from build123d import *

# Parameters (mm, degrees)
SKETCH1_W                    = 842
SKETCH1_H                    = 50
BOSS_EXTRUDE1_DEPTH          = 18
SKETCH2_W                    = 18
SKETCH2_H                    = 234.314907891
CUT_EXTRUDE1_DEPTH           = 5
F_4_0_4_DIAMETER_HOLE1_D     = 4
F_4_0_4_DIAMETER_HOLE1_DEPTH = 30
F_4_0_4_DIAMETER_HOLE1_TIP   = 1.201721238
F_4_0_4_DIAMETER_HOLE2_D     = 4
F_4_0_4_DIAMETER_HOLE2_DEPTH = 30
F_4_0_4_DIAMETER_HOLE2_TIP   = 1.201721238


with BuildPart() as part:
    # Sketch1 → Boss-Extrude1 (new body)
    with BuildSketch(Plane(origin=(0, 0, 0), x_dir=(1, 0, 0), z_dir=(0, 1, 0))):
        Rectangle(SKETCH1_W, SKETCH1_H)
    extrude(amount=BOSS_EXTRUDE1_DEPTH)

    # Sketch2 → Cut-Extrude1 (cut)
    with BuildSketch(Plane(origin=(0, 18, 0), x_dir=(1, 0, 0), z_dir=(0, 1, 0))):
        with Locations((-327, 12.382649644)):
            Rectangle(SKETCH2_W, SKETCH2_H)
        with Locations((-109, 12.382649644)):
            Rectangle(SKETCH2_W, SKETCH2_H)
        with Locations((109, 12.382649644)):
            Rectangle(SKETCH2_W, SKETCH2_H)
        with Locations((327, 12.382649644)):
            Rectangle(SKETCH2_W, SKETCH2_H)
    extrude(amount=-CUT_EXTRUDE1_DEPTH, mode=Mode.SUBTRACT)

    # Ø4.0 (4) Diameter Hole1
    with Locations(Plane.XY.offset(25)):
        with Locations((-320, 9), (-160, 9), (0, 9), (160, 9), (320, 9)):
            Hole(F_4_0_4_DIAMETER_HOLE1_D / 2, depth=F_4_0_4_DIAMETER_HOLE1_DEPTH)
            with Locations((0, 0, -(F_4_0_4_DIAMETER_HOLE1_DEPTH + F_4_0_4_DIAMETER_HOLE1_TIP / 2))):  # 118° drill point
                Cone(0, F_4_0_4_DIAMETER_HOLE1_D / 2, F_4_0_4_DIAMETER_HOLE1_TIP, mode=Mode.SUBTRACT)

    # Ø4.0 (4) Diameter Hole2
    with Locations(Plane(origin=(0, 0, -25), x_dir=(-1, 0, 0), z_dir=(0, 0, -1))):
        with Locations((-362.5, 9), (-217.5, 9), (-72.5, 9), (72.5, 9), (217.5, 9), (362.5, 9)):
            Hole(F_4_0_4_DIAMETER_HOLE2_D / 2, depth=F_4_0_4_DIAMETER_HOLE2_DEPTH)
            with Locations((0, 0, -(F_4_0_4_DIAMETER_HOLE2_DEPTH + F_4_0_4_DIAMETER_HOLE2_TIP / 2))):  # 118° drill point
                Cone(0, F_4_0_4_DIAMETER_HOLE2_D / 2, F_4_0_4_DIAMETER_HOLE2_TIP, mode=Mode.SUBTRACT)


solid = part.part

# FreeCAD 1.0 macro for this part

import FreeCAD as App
import Part
import Sketcher
from FreeCAD import Vector
Q = App.Units.Quantity

doc = App.newDocument("Part")
body = doc.addObject("PartDesign::Body", "Body")

# Sketch on XZ plane
sketch1 = body.newObject("Sketcher::SketchObject", "Sketch")
sketch1.AttachmentSupport = (doc.getObject("XZ_Plane"), [""])
sketch1.MapMode = "FlatFace"
sketch1.addGeometry(Part.LineSegment(Vector(-421, -25, 0), Vector(-421, 25, 0)), False)
sketch1.addGeometry(Part.LineSegment(Vector(-421, 25, 0), Vector(421, 25, 0)), False)
sketch1.addGeometry(Part.LineSegment(Vector(421, 25, 0), Vector(421, -25, 0)), False)
sketch1.addGeometry(Part.LineSegment(Vector(421, -25, 0), Vector(-421, -25, 0)), False)
sketch1.addConstraint(Sketcher.Constraint("Coincident", 0, 2, 1, 1))
sketch1.addConstraint(Sketcher.Constraint("Coincident", 1, 2, 2, 1))
sketch1.addConstraint(Sketcher.Constraint("Coincident", 2, 2, 3, 1))
sketch1.addConstraint(Sketcher.Constraint("Coincident", 3, 2, 0, 1))
sketch1.addConstraint(Sketcher.Constraint("Vertical", 0))
sketch1.addConstraint(Sketcher.Constraint("Horizontal", 1))
sketch1.addConstraint(Sketcher.Constraint("Vertical", 2))
sketch1.addConstraint(Sketcher.Constraint("Horizontal", 3))
sketch1.addConstraint(Sketcher.Constraint("Symmetric", 0, 2, 2, 2, -1, 1))
sketch1.addConstraint(Sketcher.Constraint("DistanceX", 1, 1, 1, 2, Q("842 mm")))
sketch1.addConstraint(Sketcher.Constraint("DistanceY", 0, 1, 0, 2, Q("50 mm")))
pad1 = body.newObject("PartDesign::Pad", "Pad")
pad1.Profile = sketch1
pad1.Length = 18
pad1.Reversed = True

# Sketch on XZ plane
sketch2 = body.newObject("Sketcher::SketchObject", "Sketch001")
sketch2.AttachmentSupport = (doc.getObject("XZ_Plane"), [""])
sketch2.MapMode = "FlatFace"
sketch2.AttachmentOffset = App.Placement(Vector(0, 0, -18), App.Rotation())
sketch2.addGeometry(Part.LineSegment(Vector(-336, -130, 0), Vector(-336, 105, 0)), False)
sketch2.addGeometry(Part.LineSegment(Vector(-336, 105, 0), Vector(-318, 105, 0)), False)
sketch2.addGeometry(Part.LineSegment(Vector(-318, 105, 0), Vector(-318, -130, 0)), False)
sketch2.addGeometry(Part.LineSegment(Vector(-318, -130, 0), Vector(-336, -130, 0)), False)
sketch2.addGeometry(Part.LineSegment(Vector(-118, -130, 0), Vector(-118, 105, 0)), False)
sketch2.addGeometry(Part.LineSegment(Vector(-118, 105, 0), Vector(-100, 105, 0)), False)
sketch2.addGeometry(Part.LineSegment(Vector(-100, 105, 0), Vector(-100, -130, 0)), False)
sketch2.addGeometry(Part.LineSegment(Vector(-100, -130, 0), Vector(-118, -130, 0)), False)
sketch2.addGeometry(Part.LineSegment(Vector(100, -130, 0), Vector(100, 105, 0)), False)
sketch2.addGeometry(Part.LineSegment(Vector(100, 105, 0), Vector(118, 105, 0)), False)
sketch2.addGeometry(Part.LineSegment(Vector(118, 105, 0), Vector(118, -130, 0)), False)
sketch2.addGeometry(Part.LineSegment(Vector(118, -130, 0), Vector(100, -130, 0)), False)
sketch2.addGeometry(Part.LineSegment(Vector(318, -130, 0), Vector(318, 105, 0)), False)
sketch2.addGeometry(Part.LineSegment(Vector(318, 105, 0), Vector(336, 105, 0)), False)
sketch2.addGeometry(Part.LineSegment(Vector(336, 105, 0), Vector(336, -130, 0)), False)
sketch2.addGeometry(Part.LineSegment(Vector(336, -130, 0), Vector(318, -130, 0)), False)
sketch2.addConstraint(Sketcher.Constraint("Coincident", 0, 2, 1, 1))
sketch2.addConstraint(Sketcher.Constraint("Coincident", 1, 2, 2, 1))
sketch2.addConstraint(Sketcher.Constraint("Coincident", 2, 2, 3, 1))
sketch2.addConstraint(Sketcher.Constraint("Coincident", 3, 2, 0, 1))
sketch2.addConstraint(Sketcher.Constraint("Coincident", 4, 2, 5, 1))
sketch2.addConstraint(Sketcher.Constraint("Coincident", 5, 2, 6, 1))
sketch2.addConstraint(Sketcher.Constraint("Coincident", 6, 2, 7, 1))
sketch2.addConstraint(Sketcher.Constraint("Coincident", 7, 2, 4, 1))
sketch2.addConstraint(Sketcher.Constraint("Coincident", 8, 2, 9, 1))
sketch2.addConstraint(Sketcher.Constraint("Coincident", 9, 2, 10, 1))
sketch2.addConstraint(Sketcher.Constraint("Coincident", 10, 2, 11, 1))
sketch2.addConstraint(Sketcher.Constraint("Coincident", 11, 2, 8, 1))
sketch2.addConstraint(Sketcher.Constraint("Coincident", 12, 2, 13, 1))
sketch2.addConstraint(Sketcher.Constraint("Coincident", 13, 2, 14, 1))
sketch2.addConstraint(Sketcher.Constraint("Coincident", 14, 2, 15, 1))
sketch2.addConstraint(Sketcher.Constraint("Coincident", 15, 2, 12, 1))
sketch2.addConstraint(Sketcher.Constraint("Vertical", 0))
sketch2.addConstraint(Sketcher.Constraint("Horizontal", 1))
sketch2.addConstraint(Sketcher.Constraint("Vertical", 2))
sketch2.addConstraint(Sketcher.Constraint("Horizontal", 3))
sketch2.addConstraint(Sketcher.Constraint("Vertical", 4))
sketch2.addConstraint(Sketcher.Constraint("Horizontal", 5))
sketch2.addConstraint(Sketcher.Constraint("Vertical", 6))
sketch2.addConstraint(Sketcher.Constraint("Horizontal", 7))
sketch2.addConstraint(Sketcher.Constraint("Vertical", 8))
sketch2.addConstraint(Sketcher.Constraint("Horizontal", 9))
sketch2.addConstraint(Sketcher.Constraint("Vertical", 10))
sketch2.addConstraint(Sketcher.Constraint("Horizontal", 11))
sketch2.addConstraint(Sketcher.Constraint("Vertical", 12))
sketch2.addConstraint(Sketcher.Constraint("Horizontal", 13))
sketch2.addConstraint(Sketcher.Constraint("Vertical", 14))
sketch2.addConstraint(Sketcher.Constraint("Horizontal", 15))
sketch2.addConstraint(Sketcher.Constraint("Symmetric", 5, 2, 8, 2, -2))
sketch2.addConstraint(Sketcher.Constraint("Symmetric", 7, 2, 10, 2, -2))
sketch2.addConstraint(Sketcher.Constraint("Symmetric", 1, 2, 12, 2, -2))
sketch2.addConstraint(Sketcher.Constraint("Symmetric", 3, 2, 14, 2, -2))
sketch2.addConstraint(Sketcher.Constraint("Horizontal", 1, 2, 4, 2))
sketch2.addConstraint(Sketcher.Constraint("Horizontal", 3, 2, 6, 2))
sketch2.addConstraint(Sketcher.Constraint("Equal", 3, 5))
sketch2.addConstraint(Sketcher.Constraint("DistanceX", 1, 1, 1, 2, Q("18 mm")))
sketch2.addConstraint(Sketcher.Constraint("DistanceX", 0, 2, -1, 1, Q("336 mm")))
sketch2.addConstraint(Sketcher.Constraint("DistanceX", 4, 2, -1, 1, Q("118 mm")))
sketch2.addConstraint(Sketcher.Constraint("DistanceY", 0, 1, 0, 2, Q("234.314908 mm")))
sketch2.addConstraint(Sketcher.Constraint("DistanceY", -1, 1, 0, 2, Q("104.774804 mm")))
pocket1 = body.newObject("PartDesign::Pocket", "Pocket")
pocket1.Profile = sketch2
pocket1.Length = 5
pocket1.Reversed = True

# Sketch on XY plane
sketch3 = body.newObject("Sketcher::SketchObject", "Sketch002")
sketch3.AttachmentSupport = (doc.getObject("XY_Plane"), [""])
sketch3.MapMode = "FlatFace"
sketch3.AttachmentOffset = App.Placement(Vector(0, 0, 25), App.Rotation())
sketch3.addGeometry(Part.Circle(Vector(-320, 9, 0), Vector(0, 0, 1), 2), False)
sketch3.addGeometry(Part.Circle(Vector(-160, 9, 0), Vector(0, 0, 1), 2), False)
sketch3.addGeometry(Part.Circle(Vector(0, 9, 0), Vector(0, 0, 1), 2), False)
sketch3.addGeometry(Part.Circle(Vector(160, 9, 0), Vector(0, 0, 1), 2), False)
sketch3.addGeometry(Part.Circle(Vector(320, 9, 0), Vector(0, 0, 1), 2), False)
sketch3.addConstraint(Sketcher.Constraint("Equal", 0, 1))
sketch3.addConstraint(Sketcher.Constraint("Equal", 1, 2))
sketch3.addConstraint(Sketcher.Constraint("Equal", 2, 3))
sketch3.addConstraint(Sketcher.Constraint("Equal", 3, 4))
sketch3.addConstraint(Sketcher.Constraint("Symmetric", 1, 3, 3, 3, -2))
sketch3.addConstraint(Sketcher.Constraint("Symmetric", 0, 3, 4, 3, -2))
sketch3.addConstraint(Sketcher.Constraint("PointOnObject", 2, 3, -2))
sketch3.addConstraint(Sketcher.Constraint("Horizontal", 0, 3, 1, 3))
sketch3.addConstraint(Sketcher.Constraint("Horizontal", 1, 3, 2, 3))
sketch3.addConstraint(Sketcher.Constraint("Diameter", 0, Q("4 mm")))
sketch3.addConstraint(Sketcher.Constraint("DistanceX", 0, 3, -1, 1, Q("320 mm")))
sketch3.addConstraint(Sketcher.Constraint("DistanceY", -1, 1, 0, 3, Q("9 mm")))
sketch3.addConstraint(Sketcher.Constraint("DistanceX", 1, 3, -1, 1, Q("160 mm")))
doc.recompute()
hole = body.newObject("PartDesign::Hole", "Hole")
hole.Profile = sketch3
hole.ThreadType = "None"
hole.Diameter = 4
hole.DepthType = "Dimension"
hole.Depth = 30
hole.DrillPoint = "Angled"
hole.DrillPointAngle = 118

# Sketch on XY plane
sketch4 = body.newObject("Sketcher::SketchObject", "Sketch003")
sketch4.AttachmentSupport = (doc.getObject("XY_Plane"), [""])
sketch4.MapMode = "FlatFace"
sketch4.AttachmentOffset = App.Placement(Vector(0, 0, -25), App.Rotation())
sketch4.addGeometry(Part.Circle(Vector(362.5, 9, 0), Vector(0, 0, 1), 2), False)
sketch4.addGeometry(Part.Circle(Vector(217.5, 9, 0), Vector(0, 0, 1), 2), False)
sketch4.addGeometry(Part.Circle(Vector(72.5, 9, 0), Vector(0, 0, 1), 2), False)
sketch4.addGeometry(Part.Circle(Vector(-72.5, 9, 0), Vector(0, 0, 1), 2), False)
sketch4.addGeometry(Part.Circle(Vector(-217.5, 9, 0), Vector(0, 0, 1), 2), False)
sketch4.addGeometry(Part.Circle(Vector(-362.5, 9, 0), Vector(0, 0, 1), 2), False)
sketch4.addConstraint(Sketcher.Constraint("Equal", 0, 1))
sketch4.addConstraint(Sketcher.Constraint("Equal", 1, 2))
sketch4.addConstraint(Sketcher.Constraint("Equal", 2, 3))
sketch4.addConstraint(Sketcher.Constraint("Equal", 3, 4))
sketch4.addConstraint(Sketcher.Constraint("Equal", 4, 5))
sketch4.addConstraint(Sketcher.Constraint("Symmetric", 2, 3, 3, 3, -2))
sketch4.addConstraint(Sketcher.Constraint("Symmetric", 1, 3, 4, 3, -2))
sketch4.addConstraint(Sketcher.Constraint("Symmetric", 0, 3, 5, 3, -2))
sketch4.addConstraint(Sketcher.Constraint("Horizontal", 0, 3, 1, 3))
sketch4.addConstraint(Sketcher.Constraint("Horizontal", 1, 3, 2, 3))
sketch4.addConstraint(Sketcher.Constraint("Diameter", 0, Q("4 mm")))
sketch4.addConstraint(Sketcher.Constraint("DistanceY", -1, 1, 0, 3, Q("9 mm")))
sketch4.addConstraint(Sketcher.Constraint("DistanceX", 1, 3, 0, 3, Q("145 mm")))
sketch4.addConstraint(Sketcher.Constraint("DistanceX", 2, 3, 1, 3, Q("145 mm")))
sketch4.addConstraint(Sketcher.Constraint("DistanceX", 3, 3, 2, 3, Q("145 mm")))
doc.recompute()
hole2 = body.newObject("PartDesign::Hole", "Hole001")
hole2.Profile = sketch4
hole2.ThreadType = "None"
hole2.Diameter = 4
hole2.DepthType = "Dimension"
hole2.Depth = 30
hole2.DrillPoint = "Angled"
hole2.DrillPointAngle = 118
hole2.Reversed = True

doc.recompute()
